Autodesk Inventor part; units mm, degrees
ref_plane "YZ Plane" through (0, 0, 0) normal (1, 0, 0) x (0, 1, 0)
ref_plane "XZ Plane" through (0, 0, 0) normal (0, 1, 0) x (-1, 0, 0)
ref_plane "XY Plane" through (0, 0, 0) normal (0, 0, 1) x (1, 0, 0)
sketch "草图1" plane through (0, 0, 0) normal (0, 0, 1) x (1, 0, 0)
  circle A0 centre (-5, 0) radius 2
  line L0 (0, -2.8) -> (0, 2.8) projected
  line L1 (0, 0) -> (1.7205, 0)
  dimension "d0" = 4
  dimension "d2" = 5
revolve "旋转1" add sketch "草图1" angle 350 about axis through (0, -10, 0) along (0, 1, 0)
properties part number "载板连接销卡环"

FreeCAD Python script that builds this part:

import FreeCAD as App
import Part
import Sketcher

V = App.Vector

doc = App.newDocument("Part")
params = doc.addObject("Spreadsheet::Sheet", "Params")
for row, (alias, value) in enumerate([
    ("sketch1_diameter", "4 mm"),
    ("revolution_angle", "350 deg"),
], start=1):
    params.set(f"A{row}", alias)
    params.set(f"B{row}", "=" + value)
    params.setAlias(f"B{row}", alias)

body = doc.addObject("PartDesign::Body", "Body")

sketch1 = doc.addObject("Sketcher::SketchObject", "Sketch")
body.addObject(sketch1)
sketch1.AttachmentSupport = (doc.XY_Plane, [""])
sketch1.MapMode = "FlatFace"
sketch1.addGeometry(Part.Circle(V(-5, 0, 0), V(0, 0, 1), 2), False)
sketch1.addConstraint([
    Sketcher.Constraint("PointOnObject", 0, 3, -1),
    Sketcher.Constraint("Diameter", 0, 4.0),
    Sketcher.Constraint("DistanceX", 0, 3, -1, 1, 5.0),
])
sketch1.setExpression("Constraints[1]", "Params.sketch1_diameter")
revolution = doc.addObject("PartDesign::Revolution", "Revolution")
body.addObject(revolution)
revolution.Profile = sketch1
revolution.ReferenceAxis = (sketch1, ["V_Axis"])
revolution.setExpression("Angle", "Params.revolution_angle")

doc.recompute()
